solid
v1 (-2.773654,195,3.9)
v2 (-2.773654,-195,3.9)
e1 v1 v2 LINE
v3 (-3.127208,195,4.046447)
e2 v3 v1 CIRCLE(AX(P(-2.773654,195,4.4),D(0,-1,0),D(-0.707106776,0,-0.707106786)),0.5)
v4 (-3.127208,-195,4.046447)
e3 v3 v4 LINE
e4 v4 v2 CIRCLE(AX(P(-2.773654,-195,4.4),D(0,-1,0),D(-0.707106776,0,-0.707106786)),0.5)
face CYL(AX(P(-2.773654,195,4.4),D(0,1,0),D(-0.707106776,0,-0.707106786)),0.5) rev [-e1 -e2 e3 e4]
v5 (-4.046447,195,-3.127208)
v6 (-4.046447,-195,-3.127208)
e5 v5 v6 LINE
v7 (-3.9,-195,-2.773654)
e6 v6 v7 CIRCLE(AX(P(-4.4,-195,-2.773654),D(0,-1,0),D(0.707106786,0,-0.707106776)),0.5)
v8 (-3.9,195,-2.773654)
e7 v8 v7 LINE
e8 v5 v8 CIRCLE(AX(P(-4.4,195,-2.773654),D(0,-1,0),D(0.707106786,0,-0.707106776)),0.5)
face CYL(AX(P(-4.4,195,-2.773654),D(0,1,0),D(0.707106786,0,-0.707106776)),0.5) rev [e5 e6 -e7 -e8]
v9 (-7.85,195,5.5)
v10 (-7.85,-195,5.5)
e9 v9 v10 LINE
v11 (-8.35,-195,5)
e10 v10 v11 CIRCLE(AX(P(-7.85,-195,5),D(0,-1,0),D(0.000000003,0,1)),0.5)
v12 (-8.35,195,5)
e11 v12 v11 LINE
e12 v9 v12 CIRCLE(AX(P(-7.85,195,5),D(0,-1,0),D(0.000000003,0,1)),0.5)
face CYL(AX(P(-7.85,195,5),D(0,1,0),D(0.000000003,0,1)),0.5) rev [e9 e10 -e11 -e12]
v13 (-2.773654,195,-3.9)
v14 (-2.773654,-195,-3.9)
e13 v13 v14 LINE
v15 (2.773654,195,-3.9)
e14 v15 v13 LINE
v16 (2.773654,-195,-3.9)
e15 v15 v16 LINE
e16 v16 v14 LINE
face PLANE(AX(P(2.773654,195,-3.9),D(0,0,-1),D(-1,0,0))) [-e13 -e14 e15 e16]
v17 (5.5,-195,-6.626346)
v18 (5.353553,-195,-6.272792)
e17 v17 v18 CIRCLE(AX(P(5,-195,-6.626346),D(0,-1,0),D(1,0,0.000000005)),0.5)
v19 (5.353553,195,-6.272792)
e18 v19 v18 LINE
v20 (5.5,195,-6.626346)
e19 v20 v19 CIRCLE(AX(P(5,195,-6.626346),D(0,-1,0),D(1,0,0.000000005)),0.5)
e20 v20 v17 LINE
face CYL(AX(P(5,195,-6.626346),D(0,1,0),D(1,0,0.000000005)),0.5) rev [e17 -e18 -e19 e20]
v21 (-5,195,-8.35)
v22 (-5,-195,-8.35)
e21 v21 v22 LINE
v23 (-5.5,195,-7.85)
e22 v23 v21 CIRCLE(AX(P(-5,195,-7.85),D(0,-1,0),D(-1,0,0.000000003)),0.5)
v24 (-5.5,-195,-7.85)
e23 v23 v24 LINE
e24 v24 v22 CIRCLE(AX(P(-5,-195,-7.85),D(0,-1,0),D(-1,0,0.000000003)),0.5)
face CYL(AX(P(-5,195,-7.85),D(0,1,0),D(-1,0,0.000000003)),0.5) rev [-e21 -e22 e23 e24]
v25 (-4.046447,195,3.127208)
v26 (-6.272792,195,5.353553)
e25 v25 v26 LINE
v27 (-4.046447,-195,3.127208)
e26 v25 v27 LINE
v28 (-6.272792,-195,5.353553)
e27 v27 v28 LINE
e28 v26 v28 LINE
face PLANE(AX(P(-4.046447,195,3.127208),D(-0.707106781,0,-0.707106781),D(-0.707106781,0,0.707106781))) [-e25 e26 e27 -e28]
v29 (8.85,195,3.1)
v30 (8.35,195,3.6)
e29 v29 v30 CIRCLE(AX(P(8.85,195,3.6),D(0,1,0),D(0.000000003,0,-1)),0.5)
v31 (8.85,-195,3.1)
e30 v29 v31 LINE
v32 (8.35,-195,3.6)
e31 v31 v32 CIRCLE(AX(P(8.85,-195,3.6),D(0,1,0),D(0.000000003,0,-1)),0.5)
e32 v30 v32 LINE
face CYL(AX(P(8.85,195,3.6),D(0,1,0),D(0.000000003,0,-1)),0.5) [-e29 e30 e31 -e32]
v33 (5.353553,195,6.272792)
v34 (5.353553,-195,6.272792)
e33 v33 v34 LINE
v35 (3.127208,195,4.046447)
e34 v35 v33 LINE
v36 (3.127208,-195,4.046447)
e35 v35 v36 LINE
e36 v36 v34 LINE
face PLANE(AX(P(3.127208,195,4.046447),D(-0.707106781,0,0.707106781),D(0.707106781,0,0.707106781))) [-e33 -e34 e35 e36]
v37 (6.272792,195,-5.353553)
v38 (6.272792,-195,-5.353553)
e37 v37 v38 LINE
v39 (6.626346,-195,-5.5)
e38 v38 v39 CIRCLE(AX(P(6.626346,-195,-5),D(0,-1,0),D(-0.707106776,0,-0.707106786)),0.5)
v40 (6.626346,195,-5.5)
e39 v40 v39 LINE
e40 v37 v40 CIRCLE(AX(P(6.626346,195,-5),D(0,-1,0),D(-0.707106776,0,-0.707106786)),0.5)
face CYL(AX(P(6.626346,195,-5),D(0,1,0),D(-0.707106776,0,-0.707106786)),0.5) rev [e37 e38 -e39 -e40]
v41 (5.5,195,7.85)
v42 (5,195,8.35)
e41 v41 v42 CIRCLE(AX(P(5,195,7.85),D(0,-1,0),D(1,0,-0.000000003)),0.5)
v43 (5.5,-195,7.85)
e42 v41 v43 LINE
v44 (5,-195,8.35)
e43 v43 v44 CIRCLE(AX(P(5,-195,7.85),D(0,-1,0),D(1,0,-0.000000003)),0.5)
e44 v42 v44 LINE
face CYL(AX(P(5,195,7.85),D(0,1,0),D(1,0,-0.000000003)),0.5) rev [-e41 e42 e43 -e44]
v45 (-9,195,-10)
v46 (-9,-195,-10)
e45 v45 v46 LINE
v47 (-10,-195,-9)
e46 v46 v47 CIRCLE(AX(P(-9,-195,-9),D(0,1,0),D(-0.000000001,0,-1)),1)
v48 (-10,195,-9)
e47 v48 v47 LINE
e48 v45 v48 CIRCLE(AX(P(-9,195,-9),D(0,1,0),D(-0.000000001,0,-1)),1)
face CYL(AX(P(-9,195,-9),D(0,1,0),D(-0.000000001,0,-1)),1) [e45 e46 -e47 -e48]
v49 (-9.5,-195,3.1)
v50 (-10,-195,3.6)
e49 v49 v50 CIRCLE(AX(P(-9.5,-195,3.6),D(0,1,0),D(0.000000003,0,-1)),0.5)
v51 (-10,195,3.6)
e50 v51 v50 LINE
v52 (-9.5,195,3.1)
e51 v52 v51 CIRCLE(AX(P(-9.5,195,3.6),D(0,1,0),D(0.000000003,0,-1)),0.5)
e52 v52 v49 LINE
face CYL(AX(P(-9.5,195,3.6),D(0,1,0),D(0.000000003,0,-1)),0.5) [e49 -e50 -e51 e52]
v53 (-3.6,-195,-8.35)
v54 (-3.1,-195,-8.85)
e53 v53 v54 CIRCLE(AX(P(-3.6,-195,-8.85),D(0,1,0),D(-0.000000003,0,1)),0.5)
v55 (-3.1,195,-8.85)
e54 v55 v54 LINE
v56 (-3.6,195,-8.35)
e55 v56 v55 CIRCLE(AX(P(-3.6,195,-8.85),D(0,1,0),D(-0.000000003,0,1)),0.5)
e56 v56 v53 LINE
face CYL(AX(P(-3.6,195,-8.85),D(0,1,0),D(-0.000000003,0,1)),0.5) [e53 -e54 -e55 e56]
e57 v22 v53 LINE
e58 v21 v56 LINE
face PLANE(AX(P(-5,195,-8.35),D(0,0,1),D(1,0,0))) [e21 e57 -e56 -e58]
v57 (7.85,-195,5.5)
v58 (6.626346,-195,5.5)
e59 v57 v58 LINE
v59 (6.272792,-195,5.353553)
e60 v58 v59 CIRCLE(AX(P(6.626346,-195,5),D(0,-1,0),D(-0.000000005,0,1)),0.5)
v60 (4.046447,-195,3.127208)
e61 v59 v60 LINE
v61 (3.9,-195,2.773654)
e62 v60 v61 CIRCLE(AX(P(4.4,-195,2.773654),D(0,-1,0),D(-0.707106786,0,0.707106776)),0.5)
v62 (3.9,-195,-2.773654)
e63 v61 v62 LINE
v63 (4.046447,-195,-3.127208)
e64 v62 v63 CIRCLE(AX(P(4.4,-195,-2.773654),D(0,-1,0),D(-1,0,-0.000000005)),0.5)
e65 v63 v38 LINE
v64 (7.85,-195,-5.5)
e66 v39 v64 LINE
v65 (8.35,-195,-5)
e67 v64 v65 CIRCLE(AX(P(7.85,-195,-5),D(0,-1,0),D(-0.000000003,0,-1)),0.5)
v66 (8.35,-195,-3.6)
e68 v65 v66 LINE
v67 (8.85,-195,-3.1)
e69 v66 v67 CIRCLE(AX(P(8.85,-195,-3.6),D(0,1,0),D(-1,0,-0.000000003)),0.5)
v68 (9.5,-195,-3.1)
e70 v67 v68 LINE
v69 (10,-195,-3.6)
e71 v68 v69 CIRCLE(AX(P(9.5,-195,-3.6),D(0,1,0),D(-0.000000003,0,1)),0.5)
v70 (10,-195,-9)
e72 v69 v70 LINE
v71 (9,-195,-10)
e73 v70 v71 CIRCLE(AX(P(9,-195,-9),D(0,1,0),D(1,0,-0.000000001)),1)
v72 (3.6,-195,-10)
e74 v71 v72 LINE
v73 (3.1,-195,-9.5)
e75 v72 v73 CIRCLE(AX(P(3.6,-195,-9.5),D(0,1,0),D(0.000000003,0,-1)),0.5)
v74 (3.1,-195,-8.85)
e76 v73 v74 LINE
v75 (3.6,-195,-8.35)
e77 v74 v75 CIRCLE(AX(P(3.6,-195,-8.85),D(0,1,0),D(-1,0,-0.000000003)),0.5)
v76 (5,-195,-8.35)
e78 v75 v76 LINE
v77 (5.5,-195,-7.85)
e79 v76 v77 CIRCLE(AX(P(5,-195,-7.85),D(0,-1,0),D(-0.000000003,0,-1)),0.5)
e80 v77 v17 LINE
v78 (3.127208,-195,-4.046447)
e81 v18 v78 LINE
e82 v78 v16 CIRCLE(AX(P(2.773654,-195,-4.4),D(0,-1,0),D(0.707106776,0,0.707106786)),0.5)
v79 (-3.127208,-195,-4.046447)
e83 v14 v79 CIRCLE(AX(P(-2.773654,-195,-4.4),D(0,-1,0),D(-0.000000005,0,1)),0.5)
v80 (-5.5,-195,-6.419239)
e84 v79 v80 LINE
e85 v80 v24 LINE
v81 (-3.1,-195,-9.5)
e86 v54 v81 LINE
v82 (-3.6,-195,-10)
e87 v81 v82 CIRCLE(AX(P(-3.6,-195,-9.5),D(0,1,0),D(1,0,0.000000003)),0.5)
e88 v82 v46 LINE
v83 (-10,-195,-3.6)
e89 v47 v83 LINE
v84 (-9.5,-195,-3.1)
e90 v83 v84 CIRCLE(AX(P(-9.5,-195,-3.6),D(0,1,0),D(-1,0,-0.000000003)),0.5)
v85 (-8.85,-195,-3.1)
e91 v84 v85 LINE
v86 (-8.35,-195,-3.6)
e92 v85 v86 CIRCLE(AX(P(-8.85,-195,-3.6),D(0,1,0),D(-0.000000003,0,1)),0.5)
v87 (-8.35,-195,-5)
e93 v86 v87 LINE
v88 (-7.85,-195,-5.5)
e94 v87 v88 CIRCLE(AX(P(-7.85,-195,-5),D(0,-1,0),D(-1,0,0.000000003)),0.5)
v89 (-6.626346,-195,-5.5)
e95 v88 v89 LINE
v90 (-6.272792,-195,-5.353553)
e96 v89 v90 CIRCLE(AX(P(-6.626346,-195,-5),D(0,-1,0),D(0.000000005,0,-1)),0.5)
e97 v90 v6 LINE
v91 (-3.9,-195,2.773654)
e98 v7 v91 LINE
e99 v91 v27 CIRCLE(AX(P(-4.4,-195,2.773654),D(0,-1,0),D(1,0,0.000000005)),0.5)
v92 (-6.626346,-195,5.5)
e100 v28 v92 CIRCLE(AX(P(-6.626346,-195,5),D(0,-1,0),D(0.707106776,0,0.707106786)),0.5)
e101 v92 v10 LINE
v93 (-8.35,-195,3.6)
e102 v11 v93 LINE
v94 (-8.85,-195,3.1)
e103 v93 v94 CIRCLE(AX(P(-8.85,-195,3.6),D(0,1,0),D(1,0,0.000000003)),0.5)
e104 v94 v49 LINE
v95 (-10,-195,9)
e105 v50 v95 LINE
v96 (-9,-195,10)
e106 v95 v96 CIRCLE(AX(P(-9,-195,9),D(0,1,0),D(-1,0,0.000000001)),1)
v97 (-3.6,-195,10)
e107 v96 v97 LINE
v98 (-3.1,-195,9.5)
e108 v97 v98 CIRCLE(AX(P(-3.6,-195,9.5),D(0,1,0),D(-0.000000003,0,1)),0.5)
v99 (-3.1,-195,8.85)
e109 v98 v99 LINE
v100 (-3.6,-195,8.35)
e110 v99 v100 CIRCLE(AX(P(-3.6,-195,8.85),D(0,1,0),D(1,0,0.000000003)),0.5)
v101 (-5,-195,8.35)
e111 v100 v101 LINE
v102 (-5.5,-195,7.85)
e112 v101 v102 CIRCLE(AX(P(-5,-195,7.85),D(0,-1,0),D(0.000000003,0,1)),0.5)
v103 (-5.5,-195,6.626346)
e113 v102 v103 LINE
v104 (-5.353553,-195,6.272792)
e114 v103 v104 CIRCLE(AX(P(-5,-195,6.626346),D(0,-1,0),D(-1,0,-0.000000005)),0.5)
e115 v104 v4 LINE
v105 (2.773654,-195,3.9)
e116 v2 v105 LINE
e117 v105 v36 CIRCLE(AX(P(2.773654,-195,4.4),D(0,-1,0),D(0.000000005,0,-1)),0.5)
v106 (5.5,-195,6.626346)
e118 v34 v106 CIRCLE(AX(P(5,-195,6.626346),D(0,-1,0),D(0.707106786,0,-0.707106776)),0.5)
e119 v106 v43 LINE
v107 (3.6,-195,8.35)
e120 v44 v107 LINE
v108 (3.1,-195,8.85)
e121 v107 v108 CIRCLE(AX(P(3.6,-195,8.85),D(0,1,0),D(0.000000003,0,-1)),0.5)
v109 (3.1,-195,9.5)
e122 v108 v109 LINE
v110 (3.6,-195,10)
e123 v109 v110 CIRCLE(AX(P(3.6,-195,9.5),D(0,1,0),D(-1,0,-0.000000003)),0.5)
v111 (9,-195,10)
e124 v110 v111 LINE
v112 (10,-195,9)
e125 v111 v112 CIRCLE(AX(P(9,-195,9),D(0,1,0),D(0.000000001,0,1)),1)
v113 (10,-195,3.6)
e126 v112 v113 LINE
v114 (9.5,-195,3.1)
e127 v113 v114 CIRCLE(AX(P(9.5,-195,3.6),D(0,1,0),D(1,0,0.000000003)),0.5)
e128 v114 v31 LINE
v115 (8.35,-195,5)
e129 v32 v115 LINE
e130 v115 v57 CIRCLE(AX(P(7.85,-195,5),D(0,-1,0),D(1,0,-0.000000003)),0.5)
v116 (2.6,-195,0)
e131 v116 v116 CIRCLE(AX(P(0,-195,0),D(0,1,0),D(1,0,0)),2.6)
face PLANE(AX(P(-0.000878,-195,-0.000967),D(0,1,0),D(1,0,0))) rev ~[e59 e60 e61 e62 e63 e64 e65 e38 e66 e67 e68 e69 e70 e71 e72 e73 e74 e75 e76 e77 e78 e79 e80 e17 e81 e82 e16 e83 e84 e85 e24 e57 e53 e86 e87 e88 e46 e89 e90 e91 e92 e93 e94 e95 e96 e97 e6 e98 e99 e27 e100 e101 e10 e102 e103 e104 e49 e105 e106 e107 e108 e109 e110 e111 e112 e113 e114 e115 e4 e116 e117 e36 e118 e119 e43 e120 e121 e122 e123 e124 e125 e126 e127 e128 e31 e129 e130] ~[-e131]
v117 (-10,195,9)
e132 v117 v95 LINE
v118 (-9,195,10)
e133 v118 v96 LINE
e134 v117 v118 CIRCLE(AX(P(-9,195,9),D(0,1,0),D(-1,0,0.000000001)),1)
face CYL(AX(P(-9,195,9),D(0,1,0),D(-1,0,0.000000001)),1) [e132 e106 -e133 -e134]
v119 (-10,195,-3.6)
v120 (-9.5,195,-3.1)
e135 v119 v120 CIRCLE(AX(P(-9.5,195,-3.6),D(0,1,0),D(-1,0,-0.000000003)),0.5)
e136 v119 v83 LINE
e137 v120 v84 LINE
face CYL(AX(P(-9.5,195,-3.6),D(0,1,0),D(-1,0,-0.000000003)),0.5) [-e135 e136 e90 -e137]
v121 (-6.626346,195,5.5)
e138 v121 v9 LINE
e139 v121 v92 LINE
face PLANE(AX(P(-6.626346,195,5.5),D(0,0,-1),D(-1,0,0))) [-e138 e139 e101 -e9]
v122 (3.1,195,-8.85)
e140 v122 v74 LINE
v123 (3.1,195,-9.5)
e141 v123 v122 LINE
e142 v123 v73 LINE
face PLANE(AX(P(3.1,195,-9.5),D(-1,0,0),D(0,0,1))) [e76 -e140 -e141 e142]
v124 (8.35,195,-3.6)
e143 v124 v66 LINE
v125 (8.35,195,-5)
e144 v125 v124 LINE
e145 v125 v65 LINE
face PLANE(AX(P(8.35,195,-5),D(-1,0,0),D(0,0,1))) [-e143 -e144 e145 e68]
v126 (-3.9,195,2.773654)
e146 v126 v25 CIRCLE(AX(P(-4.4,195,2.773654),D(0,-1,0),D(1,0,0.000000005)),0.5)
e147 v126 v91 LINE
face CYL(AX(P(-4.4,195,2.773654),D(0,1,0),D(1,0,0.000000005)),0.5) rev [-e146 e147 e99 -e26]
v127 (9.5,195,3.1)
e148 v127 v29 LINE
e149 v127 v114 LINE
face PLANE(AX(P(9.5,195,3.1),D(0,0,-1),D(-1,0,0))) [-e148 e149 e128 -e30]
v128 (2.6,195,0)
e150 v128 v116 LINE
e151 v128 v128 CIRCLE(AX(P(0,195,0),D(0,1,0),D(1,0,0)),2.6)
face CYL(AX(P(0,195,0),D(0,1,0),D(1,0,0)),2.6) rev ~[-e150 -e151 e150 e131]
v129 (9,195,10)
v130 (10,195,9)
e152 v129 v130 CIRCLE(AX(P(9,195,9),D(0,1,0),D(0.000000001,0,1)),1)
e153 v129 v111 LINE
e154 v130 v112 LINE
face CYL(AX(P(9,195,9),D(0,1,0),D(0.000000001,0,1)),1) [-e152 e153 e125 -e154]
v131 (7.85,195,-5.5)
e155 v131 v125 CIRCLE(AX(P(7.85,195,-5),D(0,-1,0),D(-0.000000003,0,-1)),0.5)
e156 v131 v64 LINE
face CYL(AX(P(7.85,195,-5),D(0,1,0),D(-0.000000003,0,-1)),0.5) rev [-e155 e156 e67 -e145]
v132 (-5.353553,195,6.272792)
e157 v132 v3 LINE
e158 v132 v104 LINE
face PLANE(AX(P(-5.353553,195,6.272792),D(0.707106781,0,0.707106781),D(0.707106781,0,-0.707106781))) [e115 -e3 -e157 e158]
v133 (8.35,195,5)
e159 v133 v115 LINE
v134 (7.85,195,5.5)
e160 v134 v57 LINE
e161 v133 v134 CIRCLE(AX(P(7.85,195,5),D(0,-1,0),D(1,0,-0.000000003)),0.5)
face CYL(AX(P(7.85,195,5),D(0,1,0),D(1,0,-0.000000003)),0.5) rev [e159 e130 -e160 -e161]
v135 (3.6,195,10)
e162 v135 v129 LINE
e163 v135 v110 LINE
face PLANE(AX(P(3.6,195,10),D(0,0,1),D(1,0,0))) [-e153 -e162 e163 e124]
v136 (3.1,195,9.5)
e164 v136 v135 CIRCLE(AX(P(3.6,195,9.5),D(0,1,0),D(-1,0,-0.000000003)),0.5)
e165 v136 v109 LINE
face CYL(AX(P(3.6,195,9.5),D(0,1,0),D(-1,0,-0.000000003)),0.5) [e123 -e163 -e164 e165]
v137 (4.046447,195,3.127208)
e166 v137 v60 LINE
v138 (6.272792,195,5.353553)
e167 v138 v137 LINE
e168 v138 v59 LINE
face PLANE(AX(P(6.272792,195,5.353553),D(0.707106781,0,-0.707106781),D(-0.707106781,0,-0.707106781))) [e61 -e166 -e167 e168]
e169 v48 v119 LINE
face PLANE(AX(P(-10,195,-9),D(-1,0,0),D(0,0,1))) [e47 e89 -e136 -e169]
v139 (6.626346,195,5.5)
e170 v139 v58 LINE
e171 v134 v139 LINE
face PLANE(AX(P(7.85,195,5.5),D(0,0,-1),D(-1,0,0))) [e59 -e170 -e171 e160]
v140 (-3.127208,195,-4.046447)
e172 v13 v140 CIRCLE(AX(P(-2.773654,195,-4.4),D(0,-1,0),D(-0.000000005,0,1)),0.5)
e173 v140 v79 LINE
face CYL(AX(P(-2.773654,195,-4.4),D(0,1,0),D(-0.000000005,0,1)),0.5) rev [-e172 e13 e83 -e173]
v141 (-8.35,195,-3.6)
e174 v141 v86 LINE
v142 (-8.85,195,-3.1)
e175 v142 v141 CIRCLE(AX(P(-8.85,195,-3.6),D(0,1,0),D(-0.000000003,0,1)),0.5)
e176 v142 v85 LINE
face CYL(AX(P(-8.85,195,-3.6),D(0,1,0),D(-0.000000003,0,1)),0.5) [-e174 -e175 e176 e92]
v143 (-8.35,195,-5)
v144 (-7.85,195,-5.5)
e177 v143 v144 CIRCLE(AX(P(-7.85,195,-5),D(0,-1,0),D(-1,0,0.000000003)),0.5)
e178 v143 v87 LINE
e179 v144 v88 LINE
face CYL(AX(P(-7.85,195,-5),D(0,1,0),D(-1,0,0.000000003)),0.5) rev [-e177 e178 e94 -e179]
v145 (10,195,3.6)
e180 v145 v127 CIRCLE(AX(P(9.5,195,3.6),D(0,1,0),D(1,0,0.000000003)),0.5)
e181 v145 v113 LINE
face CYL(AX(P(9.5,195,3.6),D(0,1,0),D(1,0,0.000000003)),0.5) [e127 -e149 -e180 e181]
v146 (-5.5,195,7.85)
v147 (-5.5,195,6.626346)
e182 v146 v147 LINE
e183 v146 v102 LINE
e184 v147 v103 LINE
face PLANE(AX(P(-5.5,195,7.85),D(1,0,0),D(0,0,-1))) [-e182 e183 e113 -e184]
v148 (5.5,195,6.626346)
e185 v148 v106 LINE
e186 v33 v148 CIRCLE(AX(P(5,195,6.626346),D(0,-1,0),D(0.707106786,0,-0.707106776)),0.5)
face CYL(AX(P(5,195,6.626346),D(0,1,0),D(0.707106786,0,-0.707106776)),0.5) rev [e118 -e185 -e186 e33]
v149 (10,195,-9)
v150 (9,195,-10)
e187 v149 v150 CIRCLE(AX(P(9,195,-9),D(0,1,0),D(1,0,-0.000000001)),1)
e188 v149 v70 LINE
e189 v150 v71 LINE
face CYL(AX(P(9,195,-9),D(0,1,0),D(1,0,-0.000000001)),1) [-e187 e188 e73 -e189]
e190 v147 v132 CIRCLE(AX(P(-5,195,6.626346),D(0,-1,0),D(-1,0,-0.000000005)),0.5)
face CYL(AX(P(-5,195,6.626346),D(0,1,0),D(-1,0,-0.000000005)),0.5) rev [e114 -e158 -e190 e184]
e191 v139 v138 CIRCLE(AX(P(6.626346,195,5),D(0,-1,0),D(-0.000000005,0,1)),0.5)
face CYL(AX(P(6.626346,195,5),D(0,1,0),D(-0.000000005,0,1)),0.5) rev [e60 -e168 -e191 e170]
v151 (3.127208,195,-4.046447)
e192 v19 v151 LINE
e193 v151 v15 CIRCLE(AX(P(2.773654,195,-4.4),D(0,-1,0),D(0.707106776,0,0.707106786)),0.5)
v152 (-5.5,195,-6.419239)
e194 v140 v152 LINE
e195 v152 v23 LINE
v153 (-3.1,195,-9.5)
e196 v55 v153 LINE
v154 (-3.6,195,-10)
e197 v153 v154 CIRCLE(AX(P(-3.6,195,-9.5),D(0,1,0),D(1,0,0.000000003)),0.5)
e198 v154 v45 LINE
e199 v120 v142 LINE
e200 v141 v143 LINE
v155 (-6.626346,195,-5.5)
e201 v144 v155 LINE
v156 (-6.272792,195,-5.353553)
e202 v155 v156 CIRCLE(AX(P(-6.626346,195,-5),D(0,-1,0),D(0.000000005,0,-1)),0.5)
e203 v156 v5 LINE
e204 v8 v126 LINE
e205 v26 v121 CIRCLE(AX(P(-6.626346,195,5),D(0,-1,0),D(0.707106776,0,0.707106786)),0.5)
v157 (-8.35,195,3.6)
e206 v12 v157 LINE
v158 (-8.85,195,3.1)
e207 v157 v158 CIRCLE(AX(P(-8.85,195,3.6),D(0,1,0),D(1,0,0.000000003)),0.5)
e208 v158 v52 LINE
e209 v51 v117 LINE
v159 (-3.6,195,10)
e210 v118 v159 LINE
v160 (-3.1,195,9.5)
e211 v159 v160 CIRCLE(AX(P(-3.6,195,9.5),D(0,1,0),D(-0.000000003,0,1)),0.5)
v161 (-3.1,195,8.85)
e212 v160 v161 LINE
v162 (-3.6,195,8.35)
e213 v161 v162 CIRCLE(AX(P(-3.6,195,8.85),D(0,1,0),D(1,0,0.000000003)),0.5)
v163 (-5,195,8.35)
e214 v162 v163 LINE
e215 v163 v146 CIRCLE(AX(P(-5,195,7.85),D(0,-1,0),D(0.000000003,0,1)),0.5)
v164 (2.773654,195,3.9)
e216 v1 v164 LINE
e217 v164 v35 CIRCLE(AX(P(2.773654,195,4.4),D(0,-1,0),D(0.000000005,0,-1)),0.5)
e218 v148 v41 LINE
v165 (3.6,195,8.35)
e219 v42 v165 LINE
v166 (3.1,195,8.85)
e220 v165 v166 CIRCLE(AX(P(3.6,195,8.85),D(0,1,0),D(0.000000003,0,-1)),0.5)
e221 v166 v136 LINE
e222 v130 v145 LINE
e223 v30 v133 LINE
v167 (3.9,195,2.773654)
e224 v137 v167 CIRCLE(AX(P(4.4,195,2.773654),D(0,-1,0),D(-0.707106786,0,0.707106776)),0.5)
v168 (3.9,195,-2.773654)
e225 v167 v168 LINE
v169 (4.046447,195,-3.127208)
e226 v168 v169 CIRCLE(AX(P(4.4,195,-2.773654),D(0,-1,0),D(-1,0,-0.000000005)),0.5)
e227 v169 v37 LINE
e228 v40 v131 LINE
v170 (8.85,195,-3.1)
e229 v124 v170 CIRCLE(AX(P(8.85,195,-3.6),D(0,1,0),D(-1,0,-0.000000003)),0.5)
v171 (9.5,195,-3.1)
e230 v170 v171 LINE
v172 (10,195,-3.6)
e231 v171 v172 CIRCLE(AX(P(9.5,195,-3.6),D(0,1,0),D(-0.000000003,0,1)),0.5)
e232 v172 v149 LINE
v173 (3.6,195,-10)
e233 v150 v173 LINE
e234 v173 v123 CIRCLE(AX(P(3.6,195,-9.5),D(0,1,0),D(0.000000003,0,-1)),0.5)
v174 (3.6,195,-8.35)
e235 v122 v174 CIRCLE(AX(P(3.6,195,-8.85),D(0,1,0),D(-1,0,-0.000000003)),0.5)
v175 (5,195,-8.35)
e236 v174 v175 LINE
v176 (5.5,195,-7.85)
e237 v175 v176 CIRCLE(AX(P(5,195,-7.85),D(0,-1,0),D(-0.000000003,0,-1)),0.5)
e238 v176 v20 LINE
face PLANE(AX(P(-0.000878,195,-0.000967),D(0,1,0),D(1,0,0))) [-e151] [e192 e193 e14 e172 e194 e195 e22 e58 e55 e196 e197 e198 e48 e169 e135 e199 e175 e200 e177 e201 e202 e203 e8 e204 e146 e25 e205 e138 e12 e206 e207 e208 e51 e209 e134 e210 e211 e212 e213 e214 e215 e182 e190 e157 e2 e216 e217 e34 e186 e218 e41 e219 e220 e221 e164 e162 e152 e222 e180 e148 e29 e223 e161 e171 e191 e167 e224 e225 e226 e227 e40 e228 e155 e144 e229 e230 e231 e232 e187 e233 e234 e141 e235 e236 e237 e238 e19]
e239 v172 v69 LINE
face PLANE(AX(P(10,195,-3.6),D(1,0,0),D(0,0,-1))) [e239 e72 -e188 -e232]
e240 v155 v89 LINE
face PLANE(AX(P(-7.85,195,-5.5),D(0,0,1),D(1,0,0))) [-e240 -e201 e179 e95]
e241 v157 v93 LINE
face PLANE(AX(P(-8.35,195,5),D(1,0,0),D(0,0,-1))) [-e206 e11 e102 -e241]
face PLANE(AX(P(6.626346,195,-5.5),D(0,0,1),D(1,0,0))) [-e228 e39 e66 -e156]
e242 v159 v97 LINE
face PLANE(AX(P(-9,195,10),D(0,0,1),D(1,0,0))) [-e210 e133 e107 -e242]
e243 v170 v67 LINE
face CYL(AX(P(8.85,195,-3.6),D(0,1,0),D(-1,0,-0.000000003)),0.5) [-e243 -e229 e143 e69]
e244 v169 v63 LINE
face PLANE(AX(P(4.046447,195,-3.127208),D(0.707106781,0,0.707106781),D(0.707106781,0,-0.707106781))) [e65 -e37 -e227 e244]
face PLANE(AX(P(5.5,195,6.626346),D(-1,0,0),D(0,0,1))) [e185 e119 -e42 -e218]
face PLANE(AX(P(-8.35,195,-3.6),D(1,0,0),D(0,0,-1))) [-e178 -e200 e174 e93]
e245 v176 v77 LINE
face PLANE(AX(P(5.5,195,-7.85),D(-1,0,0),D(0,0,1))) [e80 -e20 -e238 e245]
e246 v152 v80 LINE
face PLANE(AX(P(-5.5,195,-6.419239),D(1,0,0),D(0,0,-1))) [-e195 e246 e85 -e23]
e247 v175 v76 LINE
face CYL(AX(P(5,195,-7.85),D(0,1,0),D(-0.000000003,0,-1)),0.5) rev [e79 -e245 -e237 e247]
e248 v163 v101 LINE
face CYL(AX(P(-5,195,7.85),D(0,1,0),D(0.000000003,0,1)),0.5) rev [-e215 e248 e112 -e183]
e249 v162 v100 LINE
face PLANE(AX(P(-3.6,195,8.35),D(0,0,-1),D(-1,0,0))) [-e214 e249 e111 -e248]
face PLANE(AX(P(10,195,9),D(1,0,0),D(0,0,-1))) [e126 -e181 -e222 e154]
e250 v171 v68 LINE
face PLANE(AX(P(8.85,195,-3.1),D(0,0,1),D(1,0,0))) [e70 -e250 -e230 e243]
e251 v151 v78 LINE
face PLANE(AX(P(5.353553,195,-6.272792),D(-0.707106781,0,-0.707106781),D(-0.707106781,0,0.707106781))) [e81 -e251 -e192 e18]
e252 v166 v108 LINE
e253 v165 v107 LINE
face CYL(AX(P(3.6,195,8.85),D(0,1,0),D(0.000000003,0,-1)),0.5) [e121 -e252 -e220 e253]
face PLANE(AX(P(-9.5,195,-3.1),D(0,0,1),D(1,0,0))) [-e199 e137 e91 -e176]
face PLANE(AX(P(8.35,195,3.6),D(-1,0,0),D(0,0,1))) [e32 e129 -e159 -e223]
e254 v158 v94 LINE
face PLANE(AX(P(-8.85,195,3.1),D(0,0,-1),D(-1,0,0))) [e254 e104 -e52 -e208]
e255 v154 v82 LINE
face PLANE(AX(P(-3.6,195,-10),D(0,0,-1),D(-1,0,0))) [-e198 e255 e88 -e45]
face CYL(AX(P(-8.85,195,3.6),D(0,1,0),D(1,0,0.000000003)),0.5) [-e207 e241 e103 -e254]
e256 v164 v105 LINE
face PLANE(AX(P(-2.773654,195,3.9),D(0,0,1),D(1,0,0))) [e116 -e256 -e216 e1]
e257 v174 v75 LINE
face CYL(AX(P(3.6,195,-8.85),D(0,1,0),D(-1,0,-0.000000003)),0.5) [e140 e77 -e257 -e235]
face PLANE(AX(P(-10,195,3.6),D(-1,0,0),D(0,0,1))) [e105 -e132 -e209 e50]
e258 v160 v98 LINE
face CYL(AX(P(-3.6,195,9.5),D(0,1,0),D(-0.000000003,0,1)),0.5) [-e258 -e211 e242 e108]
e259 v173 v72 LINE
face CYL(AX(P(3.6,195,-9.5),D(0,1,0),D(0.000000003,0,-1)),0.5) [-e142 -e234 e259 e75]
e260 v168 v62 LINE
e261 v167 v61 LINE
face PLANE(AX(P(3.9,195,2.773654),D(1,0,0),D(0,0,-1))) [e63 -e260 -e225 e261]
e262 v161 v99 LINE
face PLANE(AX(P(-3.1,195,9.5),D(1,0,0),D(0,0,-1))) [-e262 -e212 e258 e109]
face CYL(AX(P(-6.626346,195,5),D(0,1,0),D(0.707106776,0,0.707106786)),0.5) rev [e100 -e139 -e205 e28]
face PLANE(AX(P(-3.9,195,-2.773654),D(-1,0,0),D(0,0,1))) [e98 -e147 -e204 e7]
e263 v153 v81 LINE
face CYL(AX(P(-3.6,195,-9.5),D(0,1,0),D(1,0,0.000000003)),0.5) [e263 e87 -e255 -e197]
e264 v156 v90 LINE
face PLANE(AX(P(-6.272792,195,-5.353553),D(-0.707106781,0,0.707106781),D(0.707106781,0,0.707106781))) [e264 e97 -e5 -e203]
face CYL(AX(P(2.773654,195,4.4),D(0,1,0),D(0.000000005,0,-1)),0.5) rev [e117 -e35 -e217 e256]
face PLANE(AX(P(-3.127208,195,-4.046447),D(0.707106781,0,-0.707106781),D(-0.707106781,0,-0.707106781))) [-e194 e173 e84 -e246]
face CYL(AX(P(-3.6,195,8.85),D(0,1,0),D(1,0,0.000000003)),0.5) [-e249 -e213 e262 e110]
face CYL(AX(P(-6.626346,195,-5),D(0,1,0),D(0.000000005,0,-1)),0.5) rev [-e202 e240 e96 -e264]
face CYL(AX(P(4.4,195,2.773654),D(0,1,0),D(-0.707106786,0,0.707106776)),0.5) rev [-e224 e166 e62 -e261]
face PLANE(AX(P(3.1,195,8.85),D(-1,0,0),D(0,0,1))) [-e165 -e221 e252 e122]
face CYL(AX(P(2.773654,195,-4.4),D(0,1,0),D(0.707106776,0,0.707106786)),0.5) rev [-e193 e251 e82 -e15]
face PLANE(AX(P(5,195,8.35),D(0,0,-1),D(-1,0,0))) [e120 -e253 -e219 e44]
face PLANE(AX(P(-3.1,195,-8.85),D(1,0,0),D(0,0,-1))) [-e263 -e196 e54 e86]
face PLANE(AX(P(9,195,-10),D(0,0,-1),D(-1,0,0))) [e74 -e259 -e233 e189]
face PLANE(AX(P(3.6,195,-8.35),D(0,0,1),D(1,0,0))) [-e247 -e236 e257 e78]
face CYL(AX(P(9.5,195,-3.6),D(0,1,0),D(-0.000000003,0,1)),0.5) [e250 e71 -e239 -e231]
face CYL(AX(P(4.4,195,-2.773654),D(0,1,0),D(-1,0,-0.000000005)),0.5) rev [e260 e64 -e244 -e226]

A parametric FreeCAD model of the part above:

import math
import FreeCAD as App
import Part
import Sketcher

doc = App.newDocument("Part")
body = doc.addObject("PartDesign::Body", "Body")

# Sketch on XZ plane
sketch1 = body.newObject("Sketcher::SketchObject", "Sketch")
sketch1.AttachmentSupport = (doc.getObject("XZ_Plane"), [""])
sketch1.MapMode = "FlatFace"
sketch1.AttachmentOffset = App.Placement(App.Vector(0, 0, -195), App.Rotation())
sketch1.addGeometry(Part.LineSegment(App.Vector(-3.1, -8.85, 0), App.Vector(-3.1, -9.5, 0)), False)
sketch1.addGeometry(Part.ArcOfCircle(Part.Circle(App.Vector(-3.6, -9.5, 0), App.Vector(0, 0, 1), 0.5), math.radians(-90), math.radians(0)), False)
sketch1.addGeometry(Part.LineSegment(App.Vector(-3.6, -10, 0), App.Vector(-9, -10, 0)), False)
sketch1.addGeometry(Part.ArcOfCircle(Part.Circle(App.Vector(-9, -9, 0), App.Vector(0, 0, 1), 1), math.radians(-180), math.radians(-90)), False)
sketch1.addGeometry(Part.LineSegment(App.Vector(-10, -9, 0), App.Vector(-10, -3.6, 0)), False)
sketch1.addGeometry(Part.ArcOfCircle(Part.Circle(App.Vector(-9.5, -3.6, 0), App.Vector(0, 0, 1), 0.5), math.radians(90), math.radians(180)), False)
sketch1.addGeometry(Part.LineSegment(App.Vector(-9.5, -3.1, 0), App.Vector(-8.85, -3.1, 0)), False)
sketch1.addGeometry(Part.ArcOfCircle(Part.Circle(App.Vector(-8.85, -3.6, 0), App.Vector(0, 0, 1), 0.5), math.radians(0), math.radians(90)), False)
sketch1.addGeometry(Part.LineSegment(App.Vector(-8.35, -3.6, 0), App.Vector(-8.35, -5, 0)), False)
sketch1.addGeometry(Part.ArcOfCircle(Part.Circle(App.Vector(-7.85, -5, 0), App.Vector(0, 0, 1), 0.5), math.radians(180), math.radians(270)), False)
sketch1.addGeometry(Part.LineSegment(App.Vector(-7.85, -5.5, 0), App.Vector(-6.63, -5.5, 0)), False)
sketch1.addGeometry(Part.ArcOfCircle(Part.Circle(App.Vector(-6.63, -5, 0), App.Vector(0, 0, 1), 0.5), math.radians(-90), math.radians(-45)), False)
sketch1.addGeometry(Part.LineSegment(App.Vector(-6.27, -5.35, 0), App.Vector(-4.05, -3.13, 0)), False)
sketch1.addGeometry(Part.ArcOfCircle(Part.Circle(App.Vector(-4.4, -2.77, 0), App.Vector(0, 0, 1), 0.5), math.radians(-45), math.radians(0)), False)
sketch1.addGeometry(Part.LineSegment(App.Vector(-3.9, -2.77, 0), App.Vector(-3.9, 2.77, 0)), False)
sketch1.addGeometry(Part.ArcOfCircle(Part.Circle(App.Vector(-4.4, 2.77, 0), App.Vector(0, 0, 1), 0.5), math.radians(0), math.radians(45)), False)
sketch1.addGeometry(Part.LineSegment(App.Vector(-4.05, 3.13, 0), App.Vector(-6.27, 5.35, 0)), False)
sketch1.addGeometry(Part.ArcOfCircle(Part.Circle(App.Vector(-6.63, 5, 0), App.Vector(0, 0, 1), 0.5), math.radians(45), math.radians(90)), False)
sketch1.addGeometry(Part.LineSegment(App.Vector(-6.63, 5.5, 0), App.Vector(-7.85, 5.5, 0)), False)
sketch1.addGeometry(Part.ArcOfCircle(Part.Circle(App.Vector(-7.85, 5, 0), App.Vector(0, 0, 1), 0.5), math.radians(90), math.radians(180)), False)
sketch1.addGeometry(Part.LineSegment(App.Vector(-8.35, 5, 0), App.Vector(-8.35, 3.6, 0)), False)
sketch1.addGeometry(Part.ArcOfCircle(Part.Circle(App.Vector(-8.85, 3.6, 0), App.Vector(0, 0, 1), 0.5), math.radians(-90), math.radians(0)), False)
sketch1.addGeometry(Part.LineSegment(App.Vector(-8.85, 3.1, 0), App.Vector(-9.5, 3.1, 0)), False)
sketch1.addGeometry(Part.ArcOfCircle(Part.Circle(App.Vector(-9.5, 3.6, 0), App.Vector(0, 0, 1), 0.5), math.radians(180), math.radians(270)), False)
sketch1.addGeometry(Part.LineSegment(App.Vector(-10, 3.6, 0), App.Vector(-10, 9, 0)), False)
sketch1.addGeometry(Part.ArcOfCircle(Part.Circle(App.Vector(-9, 9, 0), App.Vector(0, 0, 1), 1), math.radians(90), math.radians(180)), False)
sketch1.addGeometry(Part.LineSegment(App.Vector(-9, 10, 0), App.Vector(-3.6, 10, 0)), False)
sketch1.addGeometry(Part.ArcOfCircle(Part.Circle(App.Vector(-3.6, 9.5, 0), App.Vector(0, 0, 1), 0.5), math.radians(0), math.radians(90)), False)
sketch1.addGeometry(Part.LineSegment(App.Vector(-3.1, 9.5, 0), App.Vector(-3.1, 8.85, 0)), False)
sketch1.addGeometry(Part.ArcOfCircle(Part.Circle(App.Vector(-3.6, 8.85, 0), App.Vector(0, 0, 1), 0.5), math.radians(-90), math.radians(0)), False)
sketch1.addGeometry(Part.LineSegment(App.Vector(-3.6, 8.35, 0), App.Vector(-5, 8.35, 0)), False)
sketch1.addGeometry(Part.ArcOfCircle(Part.Circle(App.Vector(-5, 7.85, 0), App.Vector(0, 0, 1), 0.5), math.radians(90), math.radians(180)), False)
sketch1.addGeometry(Part.LineSegment(App.Vector(-5.5, 7.85, 0), App.Vector(-5.5, 6.63, 0)), False)
sketch1.addGeometry(Part.ArcOfCircle(Part.Circle(App.Vector(-5, 6.63, 0), App.Vector(0, 0, 1), 0.5), math.radians(-180), math.radians(-135)), False)
sketch1.addGeometry(Part.LineSegment(App.Vector(-5.35, 6.27, 0), App.Vector(-3.13, 4.05, 0)), False)
sketch1.addGeometry(Part.ArcOfCircle(Part.Circle(App.Vector(-2.77, 4.4, 0), App.Vector(0, 0, 1), 0.5), math.radians(-135), math.radians(-90)), False)
sketch1.addGeometry(Part.LineSegment(App.Vector(-2.77, 3.9, 0), App.Vector(2.77, 3.9, 0)), False)
sketch1.addGeometry(Part.ArcOfCircle(Part.Circle(App.Vector(2.77, 4.4, 0), App.Vector(0, 0, 1), 0.5), math.radians(-90), math.radians(-45)), False)
sketch1.addGeometry(Part.LineSegment(App.Vector(3.13, 4.05, 0), App.Vector(5.35, 6.27, 0)), False)
sketch1.addGeometry(Part.ArcOfCircle(Part.Circle(App.Vector(5, 6.63, 0), App.Vector(0, 0, 1), 0.5), math.radians(-45), math.radians(0)), False)
sketch1.addGeometry(Part.LineSegment(App.Vector(5.5, 6.63, 0), App.Vector(5.5, 7.85, 0)), False)
sketch1.addGeometry(Part.ArcOfCircle(Part.Circle(App.Vector(5, 7.85, 0), App.Vector(0, 0, 1), 0.5), math.radians(0), math.radians(90)), False)
sketch1.addGeometry(Part.LineSegment(App.Vector(5, 8.35, 0), App.Vector(3.6, 8.35, 0)), False)
sketch1.addGeometry(Part.ArcOfCircle(Part.Circle(App.Vector(3.6, 8.85, 0), App.Vector(0, 0, 1), 0.5), math.radians(180), math.radians(270)), False)
sketch1.addGeometry(Part.LineSegment(App.Vector(3.1, 8.85, 0), App.Vector(3.1, 9.5, 0)), False)
sketch1.addGeometry(Part.ArcOfCircle(Part.Circle(App.Vector(3.6, 9.5, 0), App.Vector(0, 0, 1), 0.5), math.radians(90), math.radians(180)), False)
sketch1.addGeometry(Part.LineSegment(App.Vector(3.6, 10, 0), App.Vector(9, 10, 0)), False)
sketch1.addGeometry(Part.ArcOfCircle(Part.Circle(App.Vector(9, 9, 0), App.Vector(0, 0, 1), 1), math.radians(0), math.radians(90)), False)
sketch1.addGeometry(Part.LineSegment(App.Vector(10, 9, 0), App.Vector(10, 3.6, 0)), False)
sketch1.addGeometry(Part.ArcOfCircle(Part.Circle(App.Vector(9.5, 3.6, 0), App.Vector(0, 0, 1), 0.5), math.radians(-90), math.radians(0)), False)
sketch1.addGeometry(Part.LineSegment(App.Vector(9.5, 3.1, 0), App.Vector(8.85, 3.1, 0)), False)
sketch1.addGeometry(Part.ArcOfCircle(Part.Circle(App.Vector(8.85, 3.6, 0), App.Vector(0, 0, 1), 0.5), math.radians(180), math.radians(270)), False)
sketch1.addGeometry(Part.LineSegment(App.Vector(8.35, 3.6, 0), App.Vector(8.35, 5, 0)), False)
sketch1.addGeometry(Part.ArcOfCircle(Part.Circle(App.Vector(7.85, 5, 0), App.Vector(0, 0, 1), 0.5), math.radians(0), math.radians(90)), False)
sketch1.addGeometry(Part.LineSegment(App.Vector(7.85, 5.5, 0), App.Vector(6.63, 5.5, 0)), False)
sketch1.addGeometry(Part.ArcOfCircle(Part.Circle(App.Vector(6.63, 5, 0), App.Vector(0, 0, 1), 0.5), math.radians(90), math.radians(135)), False)
sketch1.addGeometry(Part.LineSegment(App.Vector(6.27, 5.35, 0), App.Vector(4.05, 3.13, 0)), False)
sketch1.addGeometry(Part.ArcOfCircle(Part.Circle(App.Vector(4.4, 2.77, 0), App.Vector(0, 0, 1), 0.5), math.radians(135), math.radians(180)), False)
sketch1.addGeometry(Part.LineSegment(App.Vector(3.9, 2.77, 0), App.Vector(3.9, -2.77, 0)), False)
sketch1.addGeometry(Part.ArcOfCircle(Part.Circle(App.Vector(4.4, -2.77, 0), App.Vector(0, 0, 1), 0.5), math.radians(-180), math.radians(-135)), False)
sketch1.addGeometry(Part.LineSegment(App.Vector(4.05, -3.13, 0), App.Vector(6.27, -5.35, 0)), False)
sketch1.addGeometry(Part.ArcOfCircle(Part.Circle(App.Vector(6.63, -5, 0), App.Vector(0, 0, 1), 0.5), math.radians(-135), math.radians(-90)), False)
sketch1.addGeometry(Part.LineSegment(App.Vector(6.63, -5.5, 0), App.Vector(7.85, -5.5, 0)), False)
sketch1.addGeometry(Part.ArcOfCircle(Part.Circle(App.Vector(7.85, -5, 0), App.Vector(0, 0, 1), 0.5), math.radians(-90), math.radians(0)), False)
sketch1.addGeometry(Part.LineSegment(App.Vector(8.35, -5, 0), App.Vector(8.35, -3.6, 0)), False)
sketch1.addGeometry(Part.ArcOfCircle(Part.Circle(App.Vector(8.85, -3.6, 0), App.Vector(0, 0, 1), 0.5), math.radians(90), math.radians(180)), False)
sketch1.addGeometry(Part.LineSegment(App.Vector(8.85, -3.1, 0), App.Vector(9.5, -3.1, 0)), False)
sketch1.addGeometry(Part.ArcOfCircle(Part.Circle(App.Vector(9.5, -3.6, 0), App.Vector(0, 0, 1), 0.5), math.radians(0), math.radians(90)), False)
sketch1.addGeometry(Part.LineSegment(App.Vector(10, -3.6, 0), App.Vector(10, -9, 0)), False)
sketch1.addGeometry(Part.ArcOfCircle(Part.Circle(App.Vector(9, -9, 0), App.Vector(0, 0, 1), 1), math.radians(-90), math.radians(0)), False)
sketch1.addGeometry(Part.LineSegment(App.Vector(9, -10, 0), App.Vector(3.6, -10, 0)), False)
sketch1.addGeometry(Part.ArcOfCircle(Part.Circle(App.Vector(3.6, -9.5, 0), App.Vector(0, 0, 1), 0.5), math.radians(180), math.radians(270)), False)
sketch1.addGeometry(Part.LineSegment(App.Vector(3.1, -9.5, 0), App.Vector(3.1, -8.85, 0)), False)
sketch1.addGeometry(Part.ArcOfCircle(Part.Circle(App.Vector(3.6, -8.85, 0), App.Vector(0, 0, 1), 0.5), math.radians(90), math.radians(180)), False)
sketch1.addGeometry(Part.LineSegment(App.Vector(3.6, -8.35, 0), App.Vector(5, -8.35, 0)), False)
sketch1.addGeometry(Part.ArcOfCircle(Part.Circle(App.Vector(5, -7.85, 0), App.Vector(0, 0, 1), 0.5), math.radians(-90), math.radians(0)), False)
sketch1.addGeometry(Part.LineSegment(App.Vector(5.5, -7.85, 0), App.Vector(5.5, -6.63, 0)), False)
sketch1.addGeometry(Part.ArcOfCircle(Part.Circle(App.Vector(5, -6.63, 0), App.Vector(0, 0, 1), 0.5), math.radians(0), math.radians(45)), False)
sketch1.addGeometry(Part.LineSegment(App.Vector(5.35, -6.27, 0), App.Vector(3.13, -4.05, 0)), False)
sketch1.addGeometry(Part.ArcOfCircle(Part.Circle(App.Vector(2.77, -4.4, 0), App.Vector(0, 0, 1), 0.5), math.radians(45), math.radians(90)), False)
sketch1.addGeometry(Part.LineSegment(App.Vector(2.77, -3.9, 0), App.Vector(-2.77, -3.9, 0)), False)
sketch1.addGeometry(Part.ArcOfCircle(Part.Circle(App.Vector(-2.77, -4.4, 0), App.Vector(0, 0, 1), 0.5), math.radians(90), math.radians(135)), False)
sketch1.addGeometry(Part.LineSegment(App.Vector(-3.13, -4.05, 0), App.Vector(-5.5, -6.42, 0)), False)
sketch1.addGeometry(Part.LineSegment(App.Vector(-5.5, -6.42, 0), App.Vector(-5.5, -7.85, 0)), False)
sketch1.addGeometry(Part.ArcOfCircle(Part.Circle(App.Vector(-5, -7.85, 0), App.Vector(0, 0, 1), 0.5), math.radians(180), math.radians(270)), False)
sketch1.addGeometry(Part.LineSegment(App.Vector(-5, -8.35, 0), App.Vector(-3.6, -8.35, 0)), False)
sketch1.addGeometry(Part.ArcOfCircle(Part.Circle(App.Vector(-3.6, -8.85, 0), App.Vector(0, 0, 1), 0.5), math.radians(0), math.radians(90)), False)
sketch1.addGeometry(Part.Circle(App.Vector(0, 0, 0), App.Vector(0, 0, 1), 2.6), False)
sketch1.addConstraint(Sketcher.Constraint("Tangent", 0, 2, 1, 2))
sketch1.addConstraint(Sketcher.Constraint("Tangent", 1, 1, 2, 1))
sketch1.addConstraint(Sketcher.Constraint("Tangent", 2, 2, 3, 2))
sketch1.addConstraint(Sketcher.Constraint("Tangent", 3, 1, 4, 1))
sketch1.addConstraint(Sketcher.Constraint("Tangent", 4, 2, 5, 2))
sketch1.addConstraint(Sketcher.Constraint("Tangent", 5, 1, 6, 1))
sketch1.addConstraint(Sketcher.Constraint("Tangent", 6, 2, 7, 2))
sketch1.addConstraint(Sketcher.Constraint("Tangent", 7, 1, 8, 1))
sketch1.addConstraint(Sketcher.Constraint("Tangent", 8, 2, 9, 1))
sketch1.addConstraint(Sketcher.Constraint("Tangent", 9, 2, 10, 1))
sketch1.addConstraint(Sketcher.Constraint("Tangent", 10, 2, 11, 1))
sketch1.addConstraint(Sketcher.Constraint("Tangent", 11, 2, 12, 1))
sketch1.addConstraint(Sketcher.Constraint("Tangent", 12, 2, 13, 1))
sketch1.addConstraint(Sketcher.Constraint("Tangent", 13, 2, 14, 1))
sketch1.addConstraint(Sketcher.Constraint("Tangent", 14, 2, 15, 1))
sketch1.addConstraint(Sketcher.Constraint("Tangent", 15, 2, 16, 1))
sketch1.addConstraint(Sketcher.Constraint("Tangent", 16, 2, 17, 1))
sketch1.addConstraint(Sketcher.Constraint("Tangent", 17, 2, 18, 1))
sketch1.addConstraint(Sketcher.Constraint("Tangent", 18, 2, 19, 1))
sketch1.addConstraint(Sketcher.Constraint("Tangent", 19, 2, 20, 1))
sketch1.addConstraint(Sketcher.Constraint("Tangent", 20, 2, 21, 2))
sketch1.addConstraint(Sketcher.Constraint("Tangent", 21, 1, 22, 1))
sketch1.addConstraint(Sketcher.Constraint("Tangent", 22, 2, 23, 2))
sketch1.addConstraint(Sketcher.Constraint("Tangent", 23, 1, 24, 1))
sketch1.addConstraint(Sketcher.Constraint("Tangent", 24, 2, 25, 2))
sketch1.addConstraint(Sketcher.Constraint("Tangent", 25, 1, 26, 1))
sketch1.addConstraint(Sketcher.Constraint("Tangent", 26, 2, 27, 2))
sketch1.addConstraint(Sketcher.Constraint("Tangent", 27, 1, 28, 1))
sketch1.addConstraint(Sketcher.Constraint("Tangent", 28, 2, 29, 2))
sketch1.addConstraint(Sketcher.Constraint("Tangent", 29, 1, 30, 1))
sketch1.addConstraint(Sketcher.Constraint("Tangent", 30, 2, 31, 1))
sketch1.addConstraint(Sketcher.Constraint("Tangent", 31, 2, 32, 1))
sketch1.addConstraint(Sketcher.Constraint("Tangent", 32, 2, 33, 1))
sketch1.addConstraint(Sketcher.Constraint("Tangent", 33, 2, 34, 1))
sketch1.addConstraint(Sketcher.Constraint("Tangent", 34, 2, 35, 1))
sketch1.addConstraint(Sketcher.Constraint("Tangent", 35, 2, 36, 1))
sketch1.addConstraint(Sketcher.Constraint("Tangent", 36, 2, 37, 1))
sketch1.addConstraint(Sketcher.Constraint("Tangent", 37, 2, 38, 1))
sketch1.addConstraint(Sketcher.Constraint("Tangent", 38, 2, 39, 1))
sketch1.addConstraint(Sketcher.Constraint("Tangent", 39, 2, 40, 1))
sketch1.addConstraint(Sketcher.Constraint("Tangent", 40, 2, 41, 1))
sketch1.addConstraint(Sketcher.Constraint("Tangent", 41, 2, 42, 1))
sketch1.addConstraint(Sketcher.Constraint("Tangent", 42, 2, 43, 2))
sketch1.addConstraint(Sketcher.Constraint("Tangent", 43, 1, 44, 1))
sketch1.addConstraint(Sketcher.Constraint("Tangent", 44, 2, 45, 2))
sketch1.addConstraint(Sketcher.Constraint("Tangent", 45, 1, 46, 1))
sketch1.addConstraint(Sketcher.Constraint("Tangent", 46, 2, 47, 2))
sketch1.addConstraint(Sketcher.Constraint("Tangent", 47, 1, 48, 1))
sketch1.addConstraint(Sketcher.Constraint("Tangent", 48, 2, 49, 2))
sketch1.addConstraint(Sketcher.Constraint("Tangent", 49, 1, 50, 1))
sketch1.addConstraint(Sketcher.Constraint("Tangent", 50, 2, 51, 2))
sketch1.addConstraint(Sketcher.Constraint("Tangent", 51, 1, 52, 1))
sketch1.addConstraint(Sketcher.Constraint("Tangent", 52, 2, 53, 1))
sketch1.addConstraint(Sketcher.Constraint("Tangent", 53, 2, 54, 1))
sketch1.addConstraint(Sketcher.Constraint("Tangent", 54, 2, 55, 1))
sketch1.addConstraint(Sketcher.Constraint("Tangent", 55, 2, 56, 1))
sketch1.addConstraint(Sketcher.Constraint("Tangent", 56, 2, 57, 1))
sketch1.addConstraint(Sketcher.Constraint("Tangent", 57, 2, 58, 1))
sketch1.addConstraint(Sketcher.Constraint("Tangent", 58, 2, 59, 1))
sketch1.addConstraint(Sketcher.Constraint("Tangent", 59, 2, 60, 1))
sketch1.addConstraint(Sketcher.Constraint("Tangent", 60, 2, 61, 1))
sketch1.addConstraint(Sketcher.Constraint("Tangent", 61, 2, 62, 1))
sketch1.addConstraint(Sketcher.Constraint("Tangent", 62, 2, 63, 1))
sketch1.addConstraint(Sketcher.Constraint("Tangent", 63, 2, 64, 1))
sketch1.addConstraint(Sketcher.Constraint("Tangent", 64, 2, 65, 2))
sketch1.addConstraint(Sketcher.Constraint("Tangent", 65, 1, 66, 1))
sketch1.addConstraint(Sketcher.Constraint("Tangent", 66, 2, 67, 2))
sketch1.addConstraint(Sketcher.Constraint("Tangent", 67, 1, 68, 1))
sketch1.addConstraint(Sketcher.Constraint("Tangent", 68, 2, 69, 2))
sketch1.addConstraint(Sketcher.Constraint("Tangent", 69, 1, 70, 1))
sketch1.addConstraint(Sketcher.Constraint("Tangent", 70, 2, 71, 2))
sketch1.addConstraint(Sketcher.Constraint("Tangent", 71, 1, 72, 1))
sketch1.addConstraint(Sketcher.Constraint("Tangent", 72, 2, 73, 2))
sketch1.addConstraint(Sketcher.Constraint("Tangent", 73, 1, 74, 1))
sketch1.addConstraint(Sketcher.Constraint("Tangent", 74, 2, 75, 1))
sketch1.addConstraint(Sketcher.Constraint("Tangent", 75, 2, 76, 1))
sketch1.addConstraint(Sketcher.Constraint("Tangent", 76, 2, 77, 1))
sketch1.addConstraint(Sketcher.Constraint("Tangent", 77, 2, 78, 1))
sketch1.addConstraint(Sketcher.Constraint("Tangent", 78, 2, 79, 1))
sketch1.addConstraint(Sketcher.Constraint("Tangent", 79, 2, 80, 1))
sketch1.addConstraint(Sketcher.Constraint("Tangent", 80, 2, 81, 1))
sketch1.addConstraint(Sketcher.Constraint("Tangent", 81, 2, 82, 1))
sketch1.addConstraint(Sketcher.Constraint("Coincident", 82, 2, 83, 1))
sketch1.addConstraint(Sketcher.Constraint("Tangent", 83, 2, 84, 1))
sketch1.addConstraint(Sketcher.Constraint("Tangent", 84, 2, 85, 1))
sketch1.addConstraint(Sketcher.Constraint("Tangent", 85, 2, 86, 2))
sketch1.addConstraint(Sketcher.Constraint("Tangent", 86, 1, 0, 1))
sketch1.addConstraint(Sketcher.Constraint("Vertical", 0))
sketch1.addConstraint(Sketcher.Constraint("Horizontal", 2))
sketch1.addConstraint(Sketcher.Constraint("Vertical", 4))
sketch1.addConstraint(Sketcher.Constraint("Horizontal", 6))
sketch1.addConstraint(Sketcher.Constraint("Vertical", 8))
sketch1.addConstraint(Sketcher.Constraint("Horizontal", 10))
sketch1.addConstraint(Sketcher.Constraint("Vertical", 14))
sketch1.addConstraint(Sketcher.Constraint("Horizontal", 18))
sketch1.addConstraint(Sketcher.Constraint("Vertical", 20))
sketch1.addConstraint(Sketcher.Constraint("Horizontal", 22))
sketch1.addConstraint(Sketcher.Constraint("Vertical", 24))
sketch1.addConstraint(Sketcher.Constraint("Horizontal", 26))
sketch1.addConstraint(Sketcher.Constraint("Vertical", 28))
sketch1.addConstraint(Sketcher.Constraint("Horizontal", 30))
sketch1.addConstraint(Sketcher.Constraint("Vertical", 32))
sketch1.addConstraint(Sketcher.Constraint("Horizontal", 36))
sketch1.addConstraint(Sketcher.Constraint("Vertical", 40))
sketch1.addConstraint(Sketcher.Constraint("Horizontal", 42))
sketch1.addConstraint(Sketcher.Constraint("Vertical", 44))
sketch1.addConstraint(Sketcher.Constraint("Horizontal", 46))
sketch1.addConstraint(Sketcher.Constraint("Vertical", 48))
sketch1.addConstraint(Sketcher.Constraint("Horizontal", 50))
sketch1.addConstraint(Sketcher.Constraint("Vertical", 52))
sketch1.addConstraint(Sketcher.Constraint("Horizontal", 54))
sketch1.addConstraint(Sketcher.Constraint("Vertical", 58))
sketch1.addConstraint(Sketcher.Constraint("Horizontal", 62))
sketch1.addConstraint(Sketcher.Constraint("Vertical", 64))
sketch1.addConstraint(Sketcher.Constraint("Horizontal", 66))
sketch1.addConstraint(Sketcher.Constraint("Vertical", 68))
sketch1.addConstraint(Sketcher.Constraint("Horizontal", 70))
sketch1.addConstraint(Sketcher.Constraint("Vertical", 72))
sketch1.addConstraint(Sketcher.Constraint("Horizontal", 74))
sketch1.addConstraint(Sketcher.Constraint("Vertical", 76))
sketch1.addConstraint(Sketcher.Constraint("Horizontal", 80))
sketch1.addConstraint(Sketcher.Constraint("Vertical", 83))
sketch1.addConstraint(Sketcher.Constraint("Horizontal", 85))
sketch1.addConstraint(Sketcher.Constraint("Coincident", 87, 3, -1, 1))
sketch1.addConstraint(Sketcher.Constraint("Equal", 1, 5))
sketch1.addConstraint(Sketcher.Constraint("Equal", 5, 7))
sketch1.addConstraint(Sketcher.Constraint("Equal", 7, 9))
sketch1.addConstraint(Sketcher.Constraint("Equal", 9, 11))
sketch1.addConstraint(Sketcher.Constraint("Equal", 11, 13))
sketch1.addConstraint(Sketcher.Constraint("Equal", 13, 15))
sketch1.addConstraint(Sketcher.Constraint("Equal", 15, 17))
sketch1.addConstraint(Sketcher.Constraint("Equal", 17, 19))
sketch1.addConstraint(Sketcher.Constraint("Equal", 19, 21))
sketch1.addConstraint(Sketcher.Constraint("Equal", 21, 23))
sketch1.addConstraint(Sketcher.Constraint("Equal", 3, 25))
sketch1.addConstraint(Sketcher.Constraint("Equal", 23, 27))
sketch1.addConstraint(Sketcher.Constraint("Equal", 27, 29))
sketch1.addConstraint(Sketcher.Constraint("Equal", 29, 31))
sketch1.addConstraint(Sketcher.Constraint("Equal", 31, 33))
sketch1.addConstraint(Sketcher.Constraint("Equal", 33, 35))
sketch1.addConstraint(Sketcher.Constraint("Equal", 35, 37))
sketch1.addConstraint(Sketcher.Constraint("Equal", 37, 39))
sketch1.addConstraint(Sketcher.Constraint("Equal", 39, 41))
sketch1.addConstraint(Sketcher.Constraint("Equal", 41, 43))
sketch1.addConstraint(Sketcher.Constraint("Equal", 43, 45))
sketch1.addConstraint(Sketcher.Constraint("Equal", 25, 47))
sketch1.addConstraint(Sketcher.Constraint("Equal", 45, 49))
sketch1.addConstraint(Sketcher.Constraint("Equal", 49, 51))
sketch1.addConstraint(Sketcher.Constraint("Equal", 51, 53))
sketch1.addConstraint(Sketcher.Constraint("Equal", 53, 55))
sketch1.addConstraint(Sketcher.Constraint("Equal", 55, 57))
sketch1.addConstraint(Sketcher.Constraint("Equal", 57, 59))
sketch1.addConstraint(Sketcher.Constraint("Equal", 59, 61))
sketch1.addConstraint(Sketcher.Constraint("Equal", 61, 63))
sketch1.addConstraint(Sketcher.Constraint("Equal", 63, 65))
sketch1.addConstraint(Sketcher.Constraint("Equal", 65, 67))
sketch1.addConstraint(Sketcher.Constraint("Equal", 47, 69))
sketch1.addConstraint(Sketcher.Constraint("Equal", 67, 71))
sketch1.addConstraint(Sketcher.Constraint("Equal", 71, 73))
sketch1.addConstraint(Sketcher.Constraint("Equal", 73, 75))
sketch1.addConstraint(Sketcher.Constraint("Equal", 75, 77))
sketch1.addConstraint(Sketcher.Constraint("Equal", 77, 79))
sketch1.addConstraint(Sketcher.Constraint("Equal", 79, 81))
sketch1.addConstraint(Sketcher.Constraint("Equal", 81, 84))
sketch1.addConstraint(Sketcher.Constraint("Equal", 84, 86))
sketch1.addConstraint(Sketcher.Constraint("Symmetric", 1, 3, 45, 3, -1, 1))
sketch1.addConstraint(Sketcher.Constraint("Symmetric", 5, 3, 49, 3, -1, 1))
sketch1.addConstraint(Sketcher.Constraint("Symmetric", 9, 3, 53, 3, -1, 1))
sketch1.addConstraint(Sketcher.Constraint("Symmetric", 13, 3, 57, 3, -1, 1))
sketch1.addConstraint(Sketcher.Constraint("Symmetric", 17, 3, 61, 3, -1, 1))
sketch1.addConstraint(Sketcher.Constraint("Symmetric", 21, 3, 65, 3, -1, 1))
sketch1.addConstraint(Sketcher.Constraint("Symmetric", 25, 3, 69, 3, -1, 1))
sketch1.addConstraint(Sketcher.Constraint("Symmetric", 29, 3, 73, 3, -1, 1))
sketch1.addConstraint(Sketcher.Constraint("Symmetric", 33, 3, 77, 3, -1, 1))
sketch1.addConstraint(Sketcher.Constraint("Symmetric", 35, 3, 79, 3, -1, 1))
sketch1.addConstraint(Sketcher.Constraint("Symmetric", 41, 3, 84, 3, -1, 1))
sketch1.addConstraint(Sketcher.Constraint("Symmetric", 37, 2, 81, 2, -1, 1))
sketch1.addConstraint(Sketcher.Constraint("Symmetric", 33, 3, 39, 3, -2))
sketch1.addConstraint(Sketcher.Constraint("Symmetric", 29, 3, 43, 3, -2))
sketch1.addConstraint(Sketcher.Constraint("Symmetric", 25, 3, 47, 3, -2))
sketch1.addConstraint(Sketcher.Constraint("Symmetric", 21, 3, 51, 3, -2))
sketch1.addConstraint(Sketcher.Constraint("Symmetric", 17, 3, 55, 3, -2))
sketch1.addConstraint(Sketcher.Constraint("Symmetric", 12, 2, 59, 2, -2))
sketch1.addConstraint(Sketcher.Constraint("Perpendicular", 12, 16))
sketch1.addConstraint(Sketcher.Constraint("Parallel", 16, 34))
sketch1.addConstraint(Sketcher.Constraint("Perpendicular", 34, 38))
sketch1.addConstraint(Sketcher.Constraint("Perpendicular", 56, 60))
sketch1.addConstraint(Sketcher.Constraint("Equal", 66, 0))
sketch1.addConstraint(Sketcher.Constraint("Equal", 70, 4))
sketch1.addConstraint(Sketcher.Constraint("Equal", 85, 8))
sketch1.addConstraint(Sketcher.Constraint("Equal", 80, 14))
sketch1.addConstraint(Sketcher.Constraint("Equal", 62, 32))
sketch1.addConstraint(Sketcher.Constraint("Equal", 16, 34))
sketch1.addConstraint(Sketcher.Constraint("Radius", 3, 1.0))
sketch1.addConstraint(Sketcher.Constraint("Diameter", 87, 5.2))
sketch1.addConstraint(Sketcher.Constraint("Radius", 1, 0.5))
sketch1.addConstraint(Sketcher.Constraint("DistanceX", 2, 2, 2, 1, 5.4))
sketch1.addConstraint(Sketcher.Constraint("DistanceX", 30, 2, 30, 1, 1.4))
sketch1.addConstraint(Sketcher.Constraint("DistanceX", 3, 3, -1, 1, 9.0))
sketch1.addConstraint(Sketcher.Constraint("DistanceX", 6, 1, 6, 2, 0.65))
sketch1.addConstraint(Sketcher.Constraint("DistanceX", 13, 3, -1, 1, 4.4))
sketch1.addConstraint(Sketcher.Constraint("DistanceX", 36, 1, 36, 2, 5.547309))
pad1 = body.newObject("PartDesign::Pad", "Pad")
pad1.Profile = sketch1
pad1.Length = 390

doc.recompute()
